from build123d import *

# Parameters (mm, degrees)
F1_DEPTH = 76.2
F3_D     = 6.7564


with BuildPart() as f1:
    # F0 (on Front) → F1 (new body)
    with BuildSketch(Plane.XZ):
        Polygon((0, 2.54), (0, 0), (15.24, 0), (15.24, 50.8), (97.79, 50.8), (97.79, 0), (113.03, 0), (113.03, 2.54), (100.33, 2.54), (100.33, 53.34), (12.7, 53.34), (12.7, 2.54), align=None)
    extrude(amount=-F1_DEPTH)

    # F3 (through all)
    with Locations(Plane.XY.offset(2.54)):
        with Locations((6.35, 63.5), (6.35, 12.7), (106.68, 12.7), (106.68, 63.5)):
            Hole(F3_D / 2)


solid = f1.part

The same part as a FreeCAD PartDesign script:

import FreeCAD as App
import Part
import Sketcher
from FreeCAD import Vector
Q = App.Units.Quantity

doc = App.newDocument("Part")
params = doc.addObject("Spreadsheet::Sheet", "Params")
for row, (alias, value) in enumerate([
    ("sketch1_height", "2 in"),
    ("sketch1_width", "0.6 in"),
    ("sketch1_width2", "0.5 in"),
    ("sketch1_height2", "0.1 in"),
    ("sketch1_width3", "3.25 in"),
    ("pad1_length", "3 in"),
    ("sketch2_diameter", "0.266 in"),
    ("hole_diameter", "0.266 in"),
], start=1):
    params.set(f"A{row}", alias)
    params.set(f"B{row}", "=" + value)
    params.setAlias(f"B{row}", alias)

body = doc.addObject("PartDesign::Body", "Body")

sketch1 = doc.addObject("Sketcher::SketchObject", "Sketch")
body.addObject(sketch1)
sketch1.AttachmentSupport = (doc.XZ_Plane, [""])
sketch1.MapMode = "FlatFace"
sketch1.addGeometry([
    Part.LineSegment(Vector(0, 2.5, 0), Vector(0, 0, 0)),
    Part.LineSegment(Vector(0, 0, 0), Vector(15.2, 0, 0)),
    Part.LineSegment(Vector(15.2, 0, 0), Vector(15.2, 50.8, 0)),
    Part.LineSegment(Vector(15.2, 50.8, 0), Vector(97.8, 50.8, 0)),
    Part.LineSegment(Vector(97.8, 50.8, 0), Vector(97.8, 0, 0)),
    Part.LineSegment(Vector(97.8, 0, 0), Vector(113, 0, 0)),
    Part.LineSegment(Vector(113, 0, 0), Vector(113, 2.5, 0)),
    Part.LineSegment(Vector(113, 2.5, 0), Vector(100.3, 2.5, 0)),
    Part.LineSegment(Vector(100.3, 2.5, 0), Vector(100.3, 53.3, 0)),
    Part.LineSegment(Vector(100.3, 53.3, 0), Vector(12.7, 53.3, 0)),
    Part.LineSegment(Vector(12.7, 53.3, 0), Vector(12.7, 2.5, 0)),
    Part.LineSegment(Vector(12.7, 2.5, 0), Vector(0, 2.5, 0)),
], False)
sketch1.addConstraint([
    Sketcher.Constraint("Coincident", 0, 2, 1, 1),
    Sketcher.Constraint("Coincident", 1, 2, 2, 1),
    Sketcher.Constraint("Coincident", 2, 2, 3, 1),
    Sketcher.Constraint("Coincident", 3, 2, 4, 1),
    Sketcher.Constraint("Coincident", 4, 2, 5, 1),
    Sketcher.Constraint("Coincident", 5, 2, 6, 1),
    Sketcher.Constraint("Coincident", 6, 2, 7, 1),
    Sketcher.Constraint("Coincident", 7, 2, 8, 1),
    Sketcher.Constraint("Coincident", 8, 2, 9, 1),
    Sketcher.Constraint("Coincident", 9, 2, 10, 1),
    Sketcher.Constraint("Coincident", 10, 2, 11, 1),
    Sketcher.Constraint("Coincident", 11, 2, 0, 1),
    Sketcher.Constraint("Vertical", 0),
    Sketcher.Constraint("Horizontal", 1),
    Sketcher.Constraint("Vertical", 2),
    Sketcher.Constraint("Horizontal", 3),
    Sketcher.Constraint("Vertical", 4),
    Sketcher.Constraint("Horizontal", 5),
    Sketcher.Constraint("Vertical", 6),
    Sketcher.Constraint("Horizontal", 7),
    Sketcher.Constraint("Vertical", 8),
    Sketcher.Constraint("Horizontal", 9),
    Sketcher.Constraint("Vertical", 10),
    Sketcher.Constraint("Horizontal", 11),
    Sketcher.Constraint("Coincident", 0, 2, -1, 1),
    Sketcher.Constraint("PointOnObject", 4, 2, -1),
    Sketcher.Constraint("Horizontal", 7, 2, 10, 2),
    Sketcher.Constraint("Equal", 1, 5),
    Sketcher.Constraint("Equal", 7, 11),
    Sketcher.Constraint("Equal", 4, 8),
    Sketcher.Constraint("DistanceY", 2, 1, 2, 2, Q("2 in")),
    Sketcher.Constraint("DistanceX", 1, 1, 1, 2, Q("0.6 in")),
    Sketcher.Constraint("DistanceX", 7, 2, 7, 1, Q("0.5 in")),
    Sketcher.Constraint("DistanceY", 0, 2, 0, 1, Q("0.1 in")),
    Sketcher.Constraint("DistanceX", 3, 1, 3, 2, Q("3.25 in")),
])
sketch1.setExpression("Constraints[30]", "Params.sketch1_height")
sketch1.setExpression("Constraints[31]", "Params.sketch1_width")
sketch1.setExpression("Constraints[32]", "Params.sketch1_width2")
sketch1.setExpression("Constraints[33]", "Params.sketch1_height2")
sketch1.setExpression("Constraints[34]", "Params.sketch1_width3")
pad1 = doc.addObject("PartDesign::Pad", "Pad")
body.addObject(pad1)
pad1.Profile = sketch1
pad1.setExpression("Length", "Params.pad1_length")
pad1.Reversed = True

sketch2 = doc.addObject("Sketcher::SketchObject", "Sketch001")
body.addObject(sketch2)
sketch2.AttachmentSupport = (doc.XY_Plane, [""])
sketch2.MapMode = "FlatFace"
sketch2.AttachmentOffset = App.Placement(Vector(0, 0, 0.1 * 25.4), App.Rotation())
sketch2.addGeometry([
    Part.Circle(Vector(6.3, 63.5, 0), Vector(0, 0, 1), 3.4),
    Part.Circle(Vector(6.3, 12.7, 0), Vector(0, 0, 1), 3.4),
    Part.Circle(Vector(106.7, 12.7, 0), Vector(0, 0, 1), 3.4),
    Part.Circle(Vector(106.7, 63.5, 0), Vector(0, 0, 1), 3.4),
], False)
sketch2.addConstraint([
    Sketcher.Constraint("Equal", 0, 1),
    Sketcher.Constraint("Equal", 1, 2),
    Sketcher.Constraint("Equal", 2, 3),
    Sketcher.Constraint("Horizontal", 1, 3, 2, 3),
    Sketcher.Constraint("Horizontal", 0, 3, 3, 3),
    Sketcher.Constraint("Vertical", 0, 3, 1, 3),
    Sketcher.Constraint("Vertical", 2, 3, 3, 3),
    Sketcher.Constraint("Diameter", 0, Q("0.266 in")),
    Sketcher.Constraint("DistanceY", 1, 3, 0, 3, Q("2 in")),
    Sketcher.Constraint("DistanceY", -1, 1, 0, 3, Q("2.5 in")),
    Sketcher.Constraint("DistanceX", -1, 1, 2, 3, Q("4.2 in")),
    Sketcher.Constraint("DistanceX", -1, 1, 0, 3, Q("0.25 in")),
])
sketch2.setExpression("Constraints[7]", "Params.sketch2_diameter")
doc.recompute()
hole = doc.addObject("PartDesign::Hole", "Hole")
body.addObject(hole)
hole.Profile = sketch2
hole.ThreadType = "None"
hole.setExpression("Diameter", "Params.hole_diameter")
hole.DepthType = "ThroughAll"

doc.recompute()
